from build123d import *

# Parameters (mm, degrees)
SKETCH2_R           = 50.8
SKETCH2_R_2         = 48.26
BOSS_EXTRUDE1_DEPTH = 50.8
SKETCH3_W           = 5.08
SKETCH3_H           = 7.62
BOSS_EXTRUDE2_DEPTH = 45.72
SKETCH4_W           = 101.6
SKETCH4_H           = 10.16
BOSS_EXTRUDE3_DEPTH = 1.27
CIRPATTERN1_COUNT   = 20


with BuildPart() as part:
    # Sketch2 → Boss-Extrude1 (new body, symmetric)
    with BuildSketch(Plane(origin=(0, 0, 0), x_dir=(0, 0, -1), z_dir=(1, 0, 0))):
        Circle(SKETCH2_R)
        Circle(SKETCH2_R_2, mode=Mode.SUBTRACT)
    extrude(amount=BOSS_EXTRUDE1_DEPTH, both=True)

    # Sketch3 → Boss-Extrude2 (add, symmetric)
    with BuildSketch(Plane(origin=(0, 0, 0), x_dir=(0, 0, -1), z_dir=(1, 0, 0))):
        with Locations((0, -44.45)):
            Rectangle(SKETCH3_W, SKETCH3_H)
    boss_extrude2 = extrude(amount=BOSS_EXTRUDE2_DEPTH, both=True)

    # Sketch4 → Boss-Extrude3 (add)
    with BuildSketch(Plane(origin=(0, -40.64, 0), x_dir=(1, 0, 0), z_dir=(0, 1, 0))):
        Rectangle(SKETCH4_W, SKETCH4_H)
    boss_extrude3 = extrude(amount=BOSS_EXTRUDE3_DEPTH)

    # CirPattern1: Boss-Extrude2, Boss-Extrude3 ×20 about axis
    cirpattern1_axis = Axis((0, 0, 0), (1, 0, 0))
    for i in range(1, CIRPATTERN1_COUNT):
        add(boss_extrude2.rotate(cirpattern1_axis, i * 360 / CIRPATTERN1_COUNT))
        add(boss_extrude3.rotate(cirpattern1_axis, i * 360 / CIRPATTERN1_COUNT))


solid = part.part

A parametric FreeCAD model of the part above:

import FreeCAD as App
import Part
import Sketcher
Q = App.Units.Quantity

doc = App.newDocument("Part")
body = doc.addObject("PartDesign::Body", "Body")

sketch1 = body.newObject("Sketcher::SketchObject", "Sketch")
sketch1.AttachmentSupport = (doc.getObject("YZ_Plane"), [""])
sketch1.MapMode = "FlatFace"
sketch1.addGeometry([
    Part.Circle(App.Vector(0, 0, 0), App.Vector(0, 0, 1), 51),
    Part.Circle(App.Vector(0, 0, 0), App.Vector(0, 0, 1), 48),
], False)
sketch1.addConstraint([
    Sketcher.Constraint("Coincident", 0, 3, -1, 1),
    Sketcher.Constraint("Coincident", 1, 3, -1, 1),
    Sketcher.Constraint("Diameter", 0, Q("4 in")),
    Sketcher.Constraint("Diameter", 1, Q("3.8 in")),
])
pad1 = body.newObject("PartDesign::Pad", "Pad")
pad1.Profile = sketch1
pad1.Length = Q("4 in")
pad1.Midplane = True

sketch2 = body.newObject("Sketcher::SketchObject", "Sketch001")
sketch2.AttachmentSupport = (doc.getObject("YZ_Plane"), [""])
sketch2.MapMode = "FlatFace"
sketch2.addGeometry([
    Part.LineSegment(App.Vector(-41, 3, 0), App.Vector(-48, 3, 0)),
    Part.LineSegment(App.Vector(-48, 3, 0), App.Vector(-48, -3, 0)),
    Part.LineSegment(App.Vector(-48, -3, 0), App.Vector(-41, -3, 0)),
    Part.LineSegment(App.Vector(-41, -3, 0), App.Vector(-41, 3, 0)),
], False)
sketch2.addConstraint([
    Sketcher.Constraint("Coincident", 0, 2, 1, 1),
    Sketcher.Constraint("Coincident", 1, 2, 2, 1),
    Sketcher.Constraint("Coincident", 2, 2, 3, 1),
    Sketcher.Constraint("Coincident", 3, 2, 0, 1),
    Sketcher.Constraint("Horizontal", 0),
    Sketcher.Constraint("Vertical", 1),
    Sketcher.Constraint("Horizontal", 2),
    Sketcher.Constraint("Vertical", 3),
    Sketcher.Constraint("DistanceX", 0, 2, 0, 1, Q("0.3 in")),
    Sketcher.Constraint("DistanceY", 1, 2, 1, 1, Q("0.2 in")),
    Sketcher.Constraint("DistanceX", 0, 2, -1, 1, Q("1.9 in")),
    Sketcher.Constraint("DistanceY", -1, 1, 0, 2, Q("0.1 in")),
])
pad2 = body.newObject("PartDesign::Pad", "Pad001")
pad2.Profile = sketch2
pad2.Length = Q("3.6 in")
pad2.Midplane = True

sketch3 = body.newObject("Sketcher::SketchObject", "Sketch002")
sketch3.AttachmentSupport = (doc.getObject("XZ_Plane"), [""])
sketch3.MapMode = "FlatFace"
sketch3.AttachmentOffset = App.Placement(App.Vector(0, 0, 1.6 * 25.4), App.Rotation())
sketch3.addGeometry([
    Part.LineSegment(App.Vector(-51, -5, 0), App.Vector(-51, 5, 0)),
    Part.LineSegment(App.Vector(-51, 5, 0), App.Vector(51, 5, 0)),
    Part.LineSegment(App.Vector(51, 5, 0), App.Vector(51, -5, 0)),
    Part.LineSegment(App.Vector(51, -5, 0), App.Vector(-51, -5, 0)),
], False)
sketch3.addConstraint([
    Sketcher.Constraint("Coincident", 0, 2, 1, 1),
    Sketcher.Constraint("Coincident", 1, 2, 2, 1),
    Sketcher.Constraint("Coincident", 2, 2, 3, 1),
    Sketcher.Constraint("Coincident", 3, 2, 0, 1),
    Sketcher.Constraint("Vertical", 0),
    Sketcher.Constraint("Horizontal", 1),
    Sketcher.Constraint("Vertical", 2),
    Sketcher.Constraint("Horizontal", 3),
    Sketcher.Constraint("Symmetric", 0, 2, 2, 2, -1, 1),
    Sketcher.Constraint("DistanceX", 1, 1, 1, 2, Q("4 in")),
    Sketcher.Constraint("DistanceY", 0, 1, 0, 2, Q("0.4 in")),
])
pad3 = body.newObject("PartDesign::Pad", "Pad002")
pad3.Profile = sketch3
pad3.Length = Q("0.05 in")
pad3.Reversed = True
doc.recompute()

polarpattern = body.newObject("PartDesign::PolarPattern", "PolarPattern")
polarpattern.Originals = [pad2, pad3]
polarpattern.Axis = (doc.getObject("X_Axis"), [""])
polarpattern.Angle = 360
polarpattern.Occurrences = 20
body.Tip = polarpattern

doc.recompute()
